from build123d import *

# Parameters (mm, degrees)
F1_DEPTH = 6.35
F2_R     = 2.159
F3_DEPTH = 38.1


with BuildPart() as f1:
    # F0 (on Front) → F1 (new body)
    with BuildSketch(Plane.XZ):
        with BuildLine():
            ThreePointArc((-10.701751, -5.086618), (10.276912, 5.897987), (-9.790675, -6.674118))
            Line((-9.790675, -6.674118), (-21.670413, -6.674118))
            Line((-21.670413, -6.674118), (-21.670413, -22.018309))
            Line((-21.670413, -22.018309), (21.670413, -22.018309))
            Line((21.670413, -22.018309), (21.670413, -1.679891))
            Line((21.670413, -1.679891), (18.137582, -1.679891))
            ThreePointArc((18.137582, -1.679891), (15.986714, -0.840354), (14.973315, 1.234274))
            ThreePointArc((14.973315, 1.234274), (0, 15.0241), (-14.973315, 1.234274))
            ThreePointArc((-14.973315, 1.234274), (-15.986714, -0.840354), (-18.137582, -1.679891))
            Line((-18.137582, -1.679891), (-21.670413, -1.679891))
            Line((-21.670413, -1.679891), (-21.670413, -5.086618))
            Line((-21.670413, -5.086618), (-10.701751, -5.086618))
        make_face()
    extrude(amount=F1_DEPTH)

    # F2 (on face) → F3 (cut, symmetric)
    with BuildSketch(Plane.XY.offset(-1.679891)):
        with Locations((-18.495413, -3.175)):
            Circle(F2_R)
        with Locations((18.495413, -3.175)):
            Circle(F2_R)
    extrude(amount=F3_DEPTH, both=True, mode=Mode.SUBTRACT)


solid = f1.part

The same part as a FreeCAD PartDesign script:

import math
import FreeCAD as App
import Part
import Sketcher
from FreeCAD import Vector
Q = App.Units.Quantity

doc = App.newDocument("Part")
body = doc.addObject("PartDesign::Body", "Body")

# Sketch on XZ plane
sketch1 = doc.addObject("Sketcher::SketchObject", "Sketch")
body.addObject(sketch1)
sketch1.AttachmentSupport = (doc.XZ_Plane, [""])
sketch1.MapMode = "FlatFace"
sketch1.addGeometry([
    Part.ArcOfCircle(Part.Circle(Vector(0.000002, -0.000002, 0), Vector(0, 0, 1), 11.8491), math.radians(-145.7185), math.radians(205.422057)),  # 0
    Part.LineSegment(Vector(-9.790675, -6.674118, 0), Vector(-21.670413, -6.674118, 0)),  # 1
    Part.LineSegment(Vector(-21.670413, -6.674118, 0), Vector(-21.670413, -22.018309, 0)),  # 2
    Part.LineSegment(Vector(-21.670413, -22.018309, 0), Vector(21.670413, -22.018309, 0)),  # 3
    Part.LineSegment(Vector(21.670413, -22.018309, 0), Vector(21.670413, -1.679891, 0)),  # 4
    Part.LineSegment(Vector(21.670413, -1.679891, 0), Vector(18.137582, -1.679891, 0)),  # 5
    Part.ArcOfCircle(Part.Circle(Vector(18.137583, 1.49511, 0), Vector(0, 0, 1), 3.175001), math.radians(-175.287673), math.radians(-90.000023)),  # 6
    Part.ArcOfCircle(Part.Circle(Vector(0, 0, 0), Vector(0, 0, 1), 15.0241), math.radians(4.712329), math.radians(175.287671)),  # 7
    Part.ArcOfCircle(Part.Circle(Vector(-18.137583, 1.49511, 0), Vector(0, 0, 1), 3.175001), math.radians(-89.999977), math.radians(-4.712327)),  # 8
    Part.LineSegment(Vector(-18.137582, -1.679891, 0), Vector(-21.670413, -1.679891, 0)),  # 9
    Part.LineSegment(Vector(-21.670413, -1.679891, 0), Vector(-21.670413, -5.086618, 0)),  # 10
    Part.LineSegment(Vector(-21.670413, -5.086618, 0), Vector(-10.701751, -5.086618, 0)),  # 11
], False)
sketch1.addConstraint([
    Sketcher.Constraint("Coincident", 0, 1, 1, 1),
    Sketcher.Constraint("Coincident", 1, 2, 2, 1),
    Sketcher.Constraint("Coincident", 2, 2, 3, 1),
    Sketcher.Constraint("Coincident", 3, 2, 4, 1),
    Sketcher.Constraint("Coincident", 4, 2, 5, 1),
    Sketcher.Constraint("Coincident", 5, 2, 6, 2),
    Sketcher.Constraint("Coincident", 6, 1, 7, 1),
    Sketcher.Constraint("Coincident", 7, 2, 8, 2),
    Sketcher.Constraint("Coincident", 8, 1, 9, 1),
    Sketcher.Constraint("Coincident", 9, 2, 10, 1),
    Sketcher.Constraint("Coincident", 10, 2, 11, 1),
    Sketcher.Constraint("Coincident", 11, 2, 0, 2),
    Sketcher.Constraint("Horizontal", 1),
    Sketcher.Constraint("Vertical", 2),
    Sketcher.Constraint("Horizontal", 3),
    Sketcher.Constraint("Vertical", 4),
    Sketcher.Constraint("Horizontal", 5),
    Sketcher.Constraint("Horizontal", 9),
    Sketcher.Constraint("Vertical", 10),
    Sketcher.Constraint("Horizontal", 11),
    Sketcher.Constraint("Coincident", 0, 3, -1, 1),
    Sketcher.Constraint("Coincident", 7, 3, -1, 1),
    Sketcher.Constraint("Radius", 6, Q("0.125 in")),
    Sketcher.Constraint("Radius", 8, Q("0.125 in")),
    Sketcher.Constraint("Radius", 0, Q("0.4665 in")),
    Sketcher.Constraint("Radius", 7, Q("0.5915 in")),
    Sketcher.Constraint("DistanceY", 1, 2, 10, 2, Q("0.0625 in")),
    Sketcher.Constraint("DistanceX", 5, 2, 5, 1, 3.532831),
    Sketcher.Constraint("DistanceX", 9, 2, 9, 1, 3.532831),
    Sketcher.Constraint("DistanceY", 2, 2, 2, 1, 15.344191),
    Sketcher.Constraint("DistanceX", 6, 1, 4, 2, 6.697098),
    Sketcher.Constraint("DistanceX", 1, 2, 1, 1, 11.879738),
    Sketcher.Constraint("DistanceX", 3, 1, 3, 2, 43.340826),
    Sketcher.Constraint("DistanceX", 11, 1, 11, 2, 10.968662),
    Sketcher.Constraint("DistanceY", 4, 1, 4, 2, 20.338418),
    Sketcher.Constraint("DistanceY", 10, 2, 10, 1, 3.406727),
    Sketcher.Constraint("DistanceY", -1, 1, 6, 3, 1.49511),
    Sketcher.Constraint("DistanceX", 8, 3, 7, 2, 3.164268),
])
pad1 = doc.addObject("PartDesign::Pad", "Pad")
body.addObject(pad1)
pad1.Profile = sketch1
pad1.Length = Q("0.25 in")

# Sketch on XY plane
sketch2 = doc.addObject("Sketcher::SketchObject", "Sketch001")
body.addObject(sketch2)
sketch2.AttachmentSupport = (doc.XY_Plane, [""])
sketch2.MapMode = "FlatFace"
sketch2.AttachmentOffset = App.Placement(Vector(0, 0, -1.679891), App.Rotation())
sketch2.addGeometry([
    Part.Circle(Vector(-18.5, -3.2, 0), Vector(0, 0, 1), 2.2),
    Part.Circle(Vector(18.5, -3.2, 0), Vector(0, 0, 1), 2.2),
], False)
sketch2.addConstraint([
    Sketcher.Constraint("Equal", 0, 1),
    Sketcher.Constraint("Symmetric", 0, 3, 1, 3, -2),
    Sketcher.Constraint("Diameter", 0, Q("0.17 in")),
    Sketcher.Constraint("DistanceY", 0, 3, -1, 1, Q("0.125 in")),
    Sketcher.Constraint("DistanceX", 0, 3, -1, 1, 18.495413),
])
pocket1 = doc.addObject("PartDesign::Pocket", "Pocket")
body.addObject(pocket1)
pocket1.Profile = sketch2
pocket1.Length = Q("3 in")
pocket1.Midplane = True

doc.recompute()
